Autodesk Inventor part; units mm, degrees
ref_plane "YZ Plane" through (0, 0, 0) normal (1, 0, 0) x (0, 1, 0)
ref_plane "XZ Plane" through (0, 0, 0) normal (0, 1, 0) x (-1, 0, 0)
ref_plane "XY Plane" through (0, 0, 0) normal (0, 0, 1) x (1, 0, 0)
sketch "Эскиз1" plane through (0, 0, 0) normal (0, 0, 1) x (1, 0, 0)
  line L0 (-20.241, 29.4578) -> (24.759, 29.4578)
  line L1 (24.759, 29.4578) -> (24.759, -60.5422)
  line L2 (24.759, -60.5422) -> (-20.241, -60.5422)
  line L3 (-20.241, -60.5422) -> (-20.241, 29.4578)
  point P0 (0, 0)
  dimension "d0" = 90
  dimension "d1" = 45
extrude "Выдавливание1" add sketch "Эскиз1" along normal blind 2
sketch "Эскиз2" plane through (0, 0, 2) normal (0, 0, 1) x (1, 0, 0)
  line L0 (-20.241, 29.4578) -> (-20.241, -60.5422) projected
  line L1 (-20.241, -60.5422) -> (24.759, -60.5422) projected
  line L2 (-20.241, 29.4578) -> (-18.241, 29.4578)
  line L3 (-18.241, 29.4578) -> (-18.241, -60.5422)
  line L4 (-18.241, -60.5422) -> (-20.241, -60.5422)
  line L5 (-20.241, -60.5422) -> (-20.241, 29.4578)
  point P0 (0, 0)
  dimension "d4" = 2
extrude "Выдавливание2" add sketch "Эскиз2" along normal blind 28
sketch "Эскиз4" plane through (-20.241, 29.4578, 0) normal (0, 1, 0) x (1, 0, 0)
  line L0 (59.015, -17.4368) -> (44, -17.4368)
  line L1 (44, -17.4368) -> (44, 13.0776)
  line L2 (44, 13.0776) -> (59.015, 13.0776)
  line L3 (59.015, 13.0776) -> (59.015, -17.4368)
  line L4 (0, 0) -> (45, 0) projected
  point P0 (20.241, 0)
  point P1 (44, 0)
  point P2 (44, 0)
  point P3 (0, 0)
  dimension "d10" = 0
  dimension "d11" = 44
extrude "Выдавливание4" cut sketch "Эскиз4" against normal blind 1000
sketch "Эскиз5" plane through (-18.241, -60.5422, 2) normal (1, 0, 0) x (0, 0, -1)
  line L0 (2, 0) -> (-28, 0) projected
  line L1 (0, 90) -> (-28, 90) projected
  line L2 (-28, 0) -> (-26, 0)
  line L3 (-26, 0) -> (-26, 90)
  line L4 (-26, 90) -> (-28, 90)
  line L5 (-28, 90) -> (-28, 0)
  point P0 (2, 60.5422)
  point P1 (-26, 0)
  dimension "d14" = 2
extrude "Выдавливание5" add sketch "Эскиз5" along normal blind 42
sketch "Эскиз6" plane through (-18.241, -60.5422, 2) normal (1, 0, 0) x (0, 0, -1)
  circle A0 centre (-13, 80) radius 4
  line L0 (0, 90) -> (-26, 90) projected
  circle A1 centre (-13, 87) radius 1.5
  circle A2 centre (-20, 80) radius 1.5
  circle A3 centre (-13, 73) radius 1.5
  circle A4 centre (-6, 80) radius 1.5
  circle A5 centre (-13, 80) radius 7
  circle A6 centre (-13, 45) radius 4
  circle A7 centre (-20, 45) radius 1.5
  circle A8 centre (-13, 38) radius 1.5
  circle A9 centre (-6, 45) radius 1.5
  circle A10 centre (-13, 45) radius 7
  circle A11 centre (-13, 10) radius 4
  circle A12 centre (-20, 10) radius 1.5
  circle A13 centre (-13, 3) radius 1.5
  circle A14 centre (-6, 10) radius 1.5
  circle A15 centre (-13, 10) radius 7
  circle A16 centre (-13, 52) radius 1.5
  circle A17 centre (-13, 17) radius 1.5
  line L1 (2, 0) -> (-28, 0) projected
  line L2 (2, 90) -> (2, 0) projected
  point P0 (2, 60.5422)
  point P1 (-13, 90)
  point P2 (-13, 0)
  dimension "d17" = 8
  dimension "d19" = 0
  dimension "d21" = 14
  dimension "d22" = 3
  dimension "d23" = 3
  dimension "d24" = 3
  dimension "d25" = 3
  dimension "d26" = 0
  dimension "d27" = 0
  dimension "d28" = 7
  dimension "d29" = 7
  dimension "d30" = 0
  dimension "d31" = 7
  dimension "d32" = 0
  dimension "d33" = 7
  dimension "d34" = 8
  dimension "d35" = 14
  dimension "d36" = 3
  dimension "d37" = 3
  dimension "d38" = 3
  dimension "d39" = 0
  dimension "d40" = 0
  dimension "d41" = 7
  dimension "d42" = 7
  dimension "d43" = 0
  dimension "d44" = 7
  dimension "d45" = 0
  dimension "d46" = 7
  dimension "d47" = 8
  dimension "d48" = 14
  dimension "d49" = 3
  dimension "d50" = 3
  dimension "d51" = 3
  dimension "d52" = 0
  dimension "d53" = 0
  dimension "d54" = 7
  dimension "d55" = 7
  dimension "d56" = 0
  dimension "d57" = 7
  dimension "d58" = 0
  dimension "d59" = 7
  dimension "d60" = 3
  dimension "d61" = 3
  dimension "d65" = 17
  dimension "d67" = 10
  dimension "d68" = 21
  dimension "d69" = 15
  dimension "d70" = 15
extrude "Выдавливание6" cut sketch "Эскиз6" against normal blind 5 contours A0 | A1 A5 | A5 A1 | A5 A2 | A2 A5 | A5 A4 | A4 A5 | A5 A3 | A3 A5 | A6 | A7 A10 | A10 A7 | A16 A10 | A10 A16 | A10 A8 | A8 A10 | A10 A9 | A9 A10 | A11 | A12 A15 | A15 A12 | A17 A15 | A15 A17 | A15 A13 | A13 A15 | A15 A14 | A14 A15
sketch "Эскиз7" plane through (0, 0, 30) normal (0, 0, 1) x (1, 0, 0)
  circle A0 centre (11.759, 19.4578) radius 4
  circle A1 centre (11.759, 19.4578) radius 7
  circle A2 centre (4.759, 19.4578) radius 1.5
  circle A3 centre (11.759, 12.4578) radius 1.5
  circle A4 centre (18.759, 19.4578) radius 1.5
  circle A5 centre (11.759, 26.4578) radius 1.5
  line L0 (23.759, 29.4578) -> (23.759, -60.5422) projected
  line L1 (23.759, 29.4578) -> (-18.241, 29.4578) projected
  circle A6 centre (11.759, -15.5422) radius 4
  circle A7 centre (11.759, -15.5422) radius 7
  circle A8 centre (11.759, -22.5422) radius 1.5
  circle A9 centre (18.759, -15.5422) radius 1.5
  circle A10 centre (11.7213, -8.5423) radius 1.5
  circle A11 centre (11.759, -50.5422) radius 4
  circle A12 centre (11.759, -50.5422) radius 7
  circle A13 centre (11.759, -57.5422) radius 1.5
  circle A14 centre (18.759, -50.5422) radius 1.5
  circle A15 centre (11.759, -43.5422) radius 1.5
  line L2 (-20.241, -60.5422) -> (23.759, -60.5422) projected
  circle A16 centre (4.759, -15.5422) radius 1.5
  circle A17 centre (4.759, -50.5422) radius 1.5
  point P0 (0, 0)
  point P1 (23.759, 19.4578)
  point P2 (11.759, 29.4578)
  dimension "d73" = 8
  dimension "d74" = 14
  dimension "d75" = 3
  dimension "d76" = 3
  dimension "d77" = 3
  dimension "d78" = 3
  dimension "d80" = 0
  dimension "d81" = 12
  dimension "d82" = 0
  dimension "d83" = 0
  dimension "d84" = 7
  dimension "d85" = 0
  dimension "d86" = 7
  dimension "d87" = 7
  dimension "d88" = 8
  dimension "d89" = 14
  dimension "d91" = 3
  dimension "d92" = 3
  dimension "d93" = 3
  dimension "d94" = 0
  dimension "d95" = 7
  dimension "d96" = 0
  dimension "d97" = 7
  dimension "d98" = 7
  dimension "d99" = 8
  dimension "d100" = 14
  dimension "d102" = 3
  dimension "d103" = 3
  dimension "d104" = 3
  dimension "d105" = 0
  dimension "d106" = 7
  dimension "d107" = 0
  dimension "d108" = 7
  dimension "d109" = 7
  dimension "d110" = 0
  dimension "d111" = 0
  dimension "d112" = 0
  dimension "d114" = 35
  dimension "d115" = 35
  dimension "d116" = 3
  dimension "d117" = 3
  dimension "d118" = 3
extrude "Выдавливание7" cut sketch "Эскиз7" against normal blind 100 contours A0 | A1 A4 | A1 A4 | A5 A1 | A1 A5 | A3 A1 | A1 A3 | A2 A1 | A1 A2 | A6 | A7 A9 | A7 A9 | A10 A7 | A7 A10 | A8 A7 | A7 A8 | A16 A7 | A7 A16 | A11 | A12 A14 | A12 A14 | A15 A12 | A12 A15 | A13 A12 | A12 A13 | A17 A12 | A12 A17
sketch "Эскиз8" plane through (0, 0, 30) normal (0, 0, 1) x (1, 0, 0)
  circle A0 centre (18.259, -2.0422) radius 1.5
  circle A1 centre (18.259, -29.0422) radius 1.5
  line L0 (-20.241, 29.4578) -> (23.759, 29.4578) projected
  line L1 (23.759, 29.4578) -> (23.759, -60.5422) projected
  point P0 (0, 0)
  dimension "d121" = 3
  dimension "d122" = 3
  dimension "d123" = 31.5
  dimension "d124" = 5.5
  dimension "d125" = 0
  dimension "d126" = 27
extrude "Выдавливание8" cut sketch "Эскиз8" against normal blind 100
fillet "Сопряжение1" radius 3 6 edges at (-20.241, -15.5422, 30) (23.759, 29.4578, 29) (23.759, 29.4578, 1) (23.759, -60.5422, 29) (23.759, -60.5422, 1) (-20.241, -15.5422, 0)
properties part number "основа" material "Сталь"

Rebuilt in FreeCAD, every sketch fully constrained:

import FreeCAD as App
import Part
import Sketcher


def edges_at(feature, points):
    """Names of the edges that pass closest to the given points."""
    edges = feature.Shape.Edges
    near = lambda p: min(range(len(edges)), key=lambda i: edges[i].distToShape(Part.Vertex(*p))[0])
    return sorted({f"Edge{near(p) + 1}" for p in points})

doc = App.newDocument("Part")
body = doc.addObject("PartDesign::Body", "Body")

# Sketch on XY plane
sketch1 = body.newObject("Sketcher::SketchObject", "Sketch")
sketch1.AttachmentSupport = (doc.getObject("XY_Plane"), [""])
sketch1.MapMode = "FlatFace"
sketch1.addGeometry(Part.LineSegment(App.Vector(25, 29, 0), App.Vector(-20, 29, 0)), False)
sketch1.addGeometry(Part.LineSegment(App.Vector(-20, 29, 0), App.Vector(-20, -61, 0)), False)
sketch1.addGeometry(Part.LineSegment(App.Vector(-20, -61, 0), App.Vector(25, -61, 0)), False)
sketch1.addGeometry(Part.LineSegment(App.Vector(25, -61, 0), App.Vector(25, 29, 0)), False)
sketch1.addConstraint(Sketcher.Constraint("Coincident", 0, 2, 1, 1))
sketch1.addConstraint(Sketcher.Constraint("Coincident", 1, 2, 2, 1))
sketch1.addConstraint(Sketcher.Constraint("Coincident", 2, 2, 3, 1))
sketch1.addConstraint(Sketcher.Constraint("Coincident", 3, 2, 0, 1))
sketch1.addConstraint(Sketcher.Constraint("Horizontal", 0))
sketch1.addConstraint(Sketcher.Constraint("Vertical", 1))
sketch1.addConstraint(Sketcher.Constraint("Horizontal", 2))
sketch1.addConstraint(Sketcher.Constraint("Vertical", 3))
sketch1.addConstraint(Sketcher.Constraint("DistanceX", 0, 2, 0, 1, 45.0))
sketch1.addConstraint(Sketcher.Constraint("DistanceY", 1, 2, 1, 1, 90.0))
sketch1.addConstraint(Sketcher.Constraint("DistanceX", 0, 2, -1, 1, 20.241))
sketch1.addConstraint(Sketcher.Constraint("DistanceY", -1, 1, 0, 2, 29.4578))
pad1 = body.newObject("PartDesign::Pad", "Pad")
pad1.Profile = sketch1
pad1.Length = 2

# Sketch on XY plane
sketch2 = body.newObject("Sketcher::SketchObject", "Sketch001")
sketch2.AttachmentSupport = (doc.getObject("XY_Plane"), [""])
sketch2.MapMode = "FlatFace"
sketch2.AttachmentOffset = App.Placement(App.Vector(0, 0, 2), App.Rotation())
sketch2.addGeometry(Part.LineSegment(App.Vector(-18.2, 29.5, 0), App.Vector(-20.2, 29.5, 0)), False)
sketch2.addGeometry(Part.LineSegment(App.Vector(-20.2, 29.5, 0), App.Vector(-20.2, -60.5, 0)), False)
sketch2.addGeometry(Part.LineSegment(App.Vector(-20.2, -60.5, 0), App.Vector(-18.2, -60.5, 0)), False)
sketch2.addGeometry(Part.LineSegment(App.Vector(-18.2, -60.5, 0), App.Vector(-18.2, 29.5, 0)), False)
sketch2.addConstraint(Sketcher.Constraint("Coincident", 0, 2, 1, 1))
sketch2.addConstraint(Sketcher.Constraint("Coincident", 1, 2, 2, 1))
sketch2.addConstraint(Sketcher.Constraint("Coincident", 2, 2, 3, 1))
sketch2.addConstraint(Sketcher.Constraint("Coincident", 3, 2, 0, 1))
sketch2.addConstraint(Sketcher.Constraint("Horizontal", 0))
sketch2.addConstraint(Sketcher.Constraint("Vertical", 1))
sketch2.addConstraint(Sketcher.Constraint("Horizontal", 2))
sketch2.addConstraint(Sketcher.Constraint("Vertical", 3))
sketch2.addConstraint(Sketcher.Constraint("DistanceX", 0, 2, 0, 1, 2.0))
sketch2.addConstraint(Sketcher.Constraint("DistanceY", 1, 2, 1, 1, 90.0))
sketch2.addConstraint(Sketcher.Constraint("DistanceX", 0, 2, -1, 1, 20.241))
sketch2.addConstraint(Sketcher.Constraint("DistanceY", -1, 1, 0, 2, 29.4578))
pad2 = body.newObject("PartDesign::Pad", "Pad001")
pad2.Profile = sketch2
pad2.Length = 28

# Sketch on XZ plane
sketch3 = body.newObject("Sketcher::SketchObject", "Sketch002")
sketch3.AttachmentSupport = (doc.getObject("XZ_Plane"), [""])
sketch3.MapMode = "FlatFace"
sketch3.AttachmentOffset = App.Placement(App.Vector(0, 0, -29.4578), App.Rotation())
sketch3.addGeometry(Part.LineSegment(App.Vector(24, 17, 0), App.Vector(39, 17, 0)), False)
sketch3.addGeometry(Part.LineSegment(App.Vector(39, 17, 0), App.Vector(39, -13, 0)), False)
sketch3.addGeometry(Part.LineSegment(App.Vector(39, -13, 0), App.Vector(24, -13, 0)), False)
sketch3.addGeometry(Part.LineSegment(App.Vector(24, -13, 0), App.Vector(24, 17, 0)), False)
sketch3.addConstraint(Sketcher.Constraint("Coincident", 0, 2, 1, 1))
sketch3.addConstraint(Sketcher.Constraint("Coincident", 1, 2, 2, 1))
sketch3.addConstraint(Sketcher.Constraint("Coincident", 2, 2, 3, 1))
sketch3.addConstraint(Sketcher.Constraint("Coincident", 3, 2, 0, 1))
sketch3.addConstraint(Sketcher.Constraint("Horizontal", 0))
sketch3.addConstraint(Sketcher.Constraint("Vertical", 1))
sketch3.addConstraint(Sketcher.Constraint("Horizontal", 2))
sketch3.addConstraint(Sketcher.Constraint("Vertical", 3))
sketch3.addConstraint(Sketcher.Constraint("DistanceX", 0, 1, 0, 2, 15.015))
sketch3.addConstraint(Sketcher.Constraint("DistanceY", 1, 2, 1, 1, 30.5144))
sketch3.addConstraint(Sketcher.Constraint("DistanceX", -1, 1, 0, 2, 38.774))
sketch3.addConstraint(Sketcher.Constraint("DistanceY", -1, 1, 0, 2, 17.4368))
pocket1 = body.newObject("PartDesign::Pocket", "Pocket")
pocket1.Profile = sketch3
pocket1.Length = 1000
pocket1.Reversed = True

# Sketch on YZ plane
sketch4 = body.newObject("Sketcher::SketchObject", "Sketch003")
sketch4.AttachmentSupport = (doc.getObject("YZ_Plane"), [""])
sketch4.MapMode = "FlatFace"
sketch4.AttachmentOffset = App.Placement(App.Vector(0, 0, -18.241), App.Rotation())
sketch4.addGeometry(Part.LineSegment(App.Vector(-60.5, 30, 0), App.Vector(-60.5, 28, 0)), False)
sketch4.addGeometry(Part.LineSegment(App.Vector(-60.5, 28, 0), App.Vector(29.5, 28, 0)), False)
sketch4.addGeometry(Part.LineSegment(App.Vector(29.5, 28, 0), App.Vector(29.5, 30, 0)), False)
sketch4.addGeometry(Part.LineSegment(App.Vector(29.5, 30, 0), App.Vector(-60.5, 30, 0)), False)
sketch4.addConstraint(Sketcher.Constraint("Coincident", 0, 2, 1, 1))
sketch4.addConstraint(Sketcher.Constraint("Coincident", 1, 2, 2, 1))
sketch4.addConstraint(Sketcher.Constraint("Coincident", 2, 2, 3, 1))
sketch4.addConstraint(Sketcher.Constraint("Coincident", 3, 2, 0, 1))
sketch4.addConstraint(Sketcher.Constraint("Vertical", 0))
sketch4.addConstraint(Sketcher.Constraint("Horizontal", 1))
sketch4.addConstraint(Sketcher.Constraint("Vertical", 2))
sketch4.addConstraint(Sketcher.Constraint("Horizontal", 3))
sketch4.addConstraint(Sketcher.Constraint("DistanceY", 0, 2, 0, 1, 2.0))
sketch4.addConstraint(Sketcher.Constraint("DistanceX", 1, 1, 1, 2, 90.0))
sketch4.addConstraint(Sketcher.Constraint("DistanceY", -1, 1, 0, 2, 28.0))
sketch4.addConstraint(Sketcher.Constraint("DistanceX", 0, 2, -1, 1, 60.5422))
pad3 = body.newObject("PartDesign::Pad", "Pad002")
pad3.Profile = sketch4
pad3.Length = 42

# Sketch on YZ plane
sketch5 = body.newObject("Sketcher::SketchObject", "Sketch004")
sketch5.AttachmentSupport = (doc.getObject("YZ_Plane"), [""])
sketch5.MapMode = "FlatFace"
sketch5.AttachmentOffset = App.Placement(App.Vector(0, 0, -18.241), App.Rotation())
sketch5.addGeometry(Part.Circle(App.Vector(19.5, 15, 0), App.Vector(0, 0, 1), 4), False)
sketch5.addGeometry(Part.Circle(App.Vector(26.5, 15, 0), App.Vector(0, 0, 1), 1.5), False)
sketch5.addGeometry(Part.Circle(App.Vector(19.5, 22, 0), App.Vector(0, 0, 1), 1.5), False)
sketch5.addGeometry(Part.Circle(App.Vector(19.5, 8, 0), App.Vector(0, 0, 1), 1.5), False)
sketch5.addGeometry(Part.Circle(App.Vector(12.5, 15, 0), App.Vector(0, 0, 1), 1.5), False)
sketch5.addGeometry(Part.Circle(App.Vector(-15.5, 15, 0), App.Vector(0, 0, 1), 4), False)
sketch5.addGeometry(Part.Circle(App.Vector(-15.5, 22, 0), App.Vector(0, 0, 1), 1.5), False)
sketch5.addGeometry(Part.Circle(App.Vector(-8.5, 15, 0), App.Vector(0, 0, 1), 1.5), False)
sketch5.addGeometry(Part.Circle(App.Vector(-22.5, 15, 0), App.Vector(0, 0, 1), 1.5), False)
sketch5.addGeometry(Part.Circle(App.Vector(-15.5, 8, 0), App.Vector(0, 0, 1), 1.5), False)
sketch5.addGeometry(Part.Circle(App.Vector(-50.5, 15, 0), App.Vector(0, 0, 1), 4), False)
sketch5.addGeometry(Part.Circle(App.Vector(-50.5, 22, 0), App.Vector(0, 0, 1), 1.5), False)
sketch5.addGeometry(Part.Circle(App.Vector(-43.5, 15, 0), App.Vector(0, 0, 1), 1.5), False)
sketch5.addGeometry(Part.Circle(App.Vector(-57.5, 15, 0), App.Vector(0, 0, 1), 1.5), False)
sketch5.addGeometry(Part.Circle(App.Vector(-50.5, 8, 0), App.Vector(0, 0, 1), 1.5), False)
sketch5.addConstraint(Sketcher.Constraint("Equal", 1, 2))
sketch5.addConstraint(Sketcher.Constraint("Equal", 2, 3))
sketch5.addConstraint(Sketcher.Constraint("Equal", 3, 4))
sketch5.addConstraint(Sketcher.Constraint("Equal", 0, 5))
sketch5.addConstraint(Sketcher.Constraint("Equal", 4, 6))
sketch5.addConstraint(Sketcher.Constraint("Equal", 6, 7))
sketch5.addConstraint(Sketcher.Constraint("Equal", 7, 8))
sketch5.addConstraint(Sketcher.Constraint("Equal", 8, 9))
sketch5.addConstraint(Sketcher.Constraint("Equal", 5, 10))
sketch5.addConstraint(Sketcher.Constraint("Equal", 9, 11))
sketch5.addConstraint(Sketcher.Constraint("Equal", 11, 12))
sketch5.addConstraint(Sketcher.Constraint("Equal", 12, 13))
sketch5.addConstraint(Sketcher.Constraint("Equal", 13, 14))
sketch5.addConstraint(Sketcher.Constraint("Horizontal", 0, 3, 1, 3))
sketch5.addConstraint(Sketcher.Constraint("Horizontal", 1, 3, 4, 3))
sketch5.addConstraint(Sketcher.Constraint("Horizontal", 4, 3, 5, 3))
sketch5.addConstraint(Sketcher.Constraint("Horizontal", 2, 3, 6, 3))
sketch5.addConstraint(Sketcher.Constraint("Horizontal", 5, 3, 7, 3))
sketch5.addConstraint(Sketcher.Constraint("Horizontal", 7, 3, 8, 3))
sketch5.addConstraint(Sketcher.Constraint("Horizontal", 3, 3, 9, 3))
sketch5.addConstraint(Sketcher.Constraint("Horizontal", 8, 3, 10, 3))
sketch5.addConstraint(Sketcher.Constraint("Horizontal", 6, 3, 11, 3))
sketch5.addConstraint(Sketcher.Constraint("Horizontal", 10, 3, 12, 3))
sketch5.addConstraint(Sketcher.Constraint("Horizontal", 12, 3, 13, 3))
sketch5.addConstraint(Sketcher.Constraint("Horizontal", 9, 3, 14, 3))
sketch5.addConstraint(Sketcher.Constraint("Vertical", 0, 3, 2, 3))
sketch5.addConstraint(Sketcher.Constraint("Vertical", 2, 3, 3, 3))
sketch5.addConstraint(Sketcher.Constraint("Vertical", 5, 3, 6, 3))
sketch5.addConstraint(Sketcher.Constraint("Vertical", 6, 3, 9, 3))
sketch5.addConstraint(Sketcher.Constraint("Vertical", 10, 3, 11, 3))
sketch5.addConstraint(Sketcher.Constraint("Vertical", 11, 3, 14, 3))
sketch5.addConstraint(Sketcher.Constraint("Diameter", 0, 8.0))
sketch5.addConstraint(Sketcher.Constraint("Diameter", 1, 3.0))
sketch5.addConstraint(Sketcher.Constraint("DistanceY", -1, 1, 0, 3, 15.0))
sketch5.addConstraint(Sketcher.Constraint("DistanceY", -1, 1, 3, 3, 8.0))
sketch5.addConstraint(Sketcher.Constraint("DistanceX", 0, 3, 1, 3, 7.0))
sketch5.addConstraint(Sketcher.Constraint("DistanceY", 0, 3, 2, 3, 7.0))
sketch5.addConstraint(Sketcher.Constraint("DistanceX", 4, 3, 0, 3, 7.0))
sketch5.addConstraint(Sketcher.Constraint("DistanceX", 5, 3, 7, 3, 7.0))
sketch5.addConstraint(Sketcher.Constraint("DistanceX", 7, 3, 4, 3, 21.0))
sketch5.addConstraint(Sketcher.Constraint("DistanceX", 8, 3, 5, 3, 7.0))
sketch5.addConstraint(Sketcher.Constraint("DistanceX", 10, 3, 12, 3, 7.0))
sketch5.addConstraint(Sketcher.Constraint("DistanceX", 12, 3, 8, 3, 21.0))
sketch5.addConstraint(Sketcher.Constraint("DistanceX", 13, 3, 10, 3, 7.0))
sketch5.addConstraint(Sketcher.Constraint("DistanceX", -1, 1, 0, 3, 19.4578))
pocket2 = body.newObject("PartDesign::Pocket", "Pocket001")
pocket2.Profile = sketch5
pocket2.Length = 5

# Sketch on XY plane
sketch6 = body.newObject("Sketcher::SketchObject", "Sketch005")
sketch6.AttachmentSupport = (doc.getObject("XY_Plane"), [""])
sketch6.MapMode = "FlatFace"
sketch6.AttachmentOffset = App.Placement(App.Vector(0, 0, 30), App.Rotation())
sketch6.addGeometry(Part.Circle(App.Vector(11.8, 19.5, 0), App.Vector(0, 0, 1), 4), False)
sketch6.addGeometry(Part.Circle(App.Vector(18.8, 19.5, 0), App.Vector(0, 0, 1), 1.5), False)
sketch6.addGeometry(Part.Circle(App.Vector(11.8, 26.5, 0), App.Vector(0, 0, 1), 1.5), False)
sketch6.addGeometry(Part.Circle(App.Vector(11.8, 12.5, 0), App.Vector(0, 0, 1), 1.5), False)
sketch6.addGeometry(Part.Circle(App.Vector(4.8, 19.5, 0), App.Vector(0, 0, 1), 1.5), False)
sketch6.addGeometry(Part.Circle(App.Vector(11.8, -15.5, 0), App.Vector(0, 0, 1), 4), False)
sketch6.addGeometry(Part.Circle(App.Vector(18.8, -15.5, 0), App.Vector(0, 0, 1), 1.5), False)
sketch6.addGeometry(Part.Circle(App.Vector(11.7, -8.5, 0), App.Vector(0, 0, 1), 1.5), False)
sketch6.addGeometry(Part.Circle(App.Vector(11.8, -22.5, 0), App.Vector(0, 0, 1), 1.5), False)
sketch6.addGeometry(Part.Circle(App.Vector(4.8, -15.5, 0), App.Vector(0, 0, 1), 1.5), False)
sketch6.addGeometry(Part.Circle(App.Vector(11.8, -50.5, 0), App.Vector(0, 0, 1), 4), False)
sketch6.addGeometry(Part.Circle(App.Vector(18.8, -50.5, 0), App.Vector(0, 0, 1), 1.5), False)
sketch6.addGeometry(Part.Circle(App.Vector(11.8, -43.5, 0), App.Vector(0, 0, 1), 1.5), False)
sketch6.addGeometry(Part.Circle(App.Vector(11.8, -57.5, 0), App.Vector(0, 0, 1), 1.5), False)
sketch6.addGeometry(Part.Circle(App.Vector(4.8, -50.5, 0), App.Vector(0, 0, 1), 1.5), False)
sketch6.addConstraint(Sketcher.Constraint("Equal", 1, 2))
sketch6.addConstraint(Sketcher.Constraint("Equal", 2, 3))
sketch6.addConstraint(Sketcher.Constraint("Equal", 3, 4))
sketch6.addConstraint(Sketcher.Constraint("Equal", 0, 5))
sketch6.addConstraint(Sketcher.Constraint("Equal", 4, 6))
sketch6.addConstraint(Sketcher.Constraint("Equal", 6, 7))
sketch6.addConstraint(Sketcher.Constraint("Equal", 7, 8))
sketch6.addConstraint(Sketcher.Constraint("Equal", 8, 9))
sketch6.addConstraint(Sketcher.Constraint("Equal", 5, 10))
sketch6.addConstraint(Sketcher.Constraint("Equal", 9, 11))
sketch6.addConstraint(Sketcher.Constraint("Equal", 11, 12))
sketch6.addConstraint(Sketcher.Constraint("Equal", 12, 13))
sketch6.addConstraint(Sketcher.Constraint("Equal", 13, 14))
sketch6.addConstraint(Sketcher.Constraint("Horizontal", 0, 3, 1, 3))
sketch6.addConstraint(Sketcher.Constraint("Horizontal", 1, 3, 4, 3))
sketch6.addConstraint(Sketcher.Constraint("Horizontal", 5, 3, 6, 3))
sketch6.addConstraint(Sketcher.Constraint("Horizontal", 6, 3, 9, 3))
sketch6.addConstraint(Sketcher.Constraint("Horizontal", 10, 3, 11, 3))
sketch6.addConstraint(Sketcher.Constraint("Horizontal", 11, 3, 14, 3))
sketch6.addConstraint(Sketcher.Constraint("Vertical", 0, 3, 2, 3))
sketch6.addConstraint(Sketcher.Constraint("Vertical", 2, 3, 3, 3))
sketch6.addConstraint(Sketcher.Constraint("Vertical", 3, 3, 5, 3))
sketch6.addConstraint(Sketcher.Constraint("Vertical", 1, 3, 6, 3))
sketch6.addConstraint(Sketcher.Constraint("Vertical", 5, 3, 8, 3))
sketch6.addConstraint(Sketcher.Constraint("Vertical", 4, 3, 9, 3))
sketch6.addConstraint(Sketcher.Constraint("Vertical", 8, 3, 10, 3))
sketch6.addConstraint(Sketcher.Constraint("Vertical", 6, 3, 11, 3))
sketch6.addConstraint(Sketcher.Constraint("Vertical", 10, 3, 12, 3))
sketch6.addConstraint(Sketcher.Constraint("Vertical", 12, 3, 13, 3))
sketch6.addConstraint(Sketcher.Constraint("Vertical", 9, 3, 14, 3))
sketch6.addConstraint(Sketcher.Constraint("Diameter", 0, 8.0))
sketch6.addConstraint(Sketcher.Constraint("Diameter", 1, 3.0))
sketch6.addConstraint(Sketcher.Constraint("DistanceX", 0, 3, 1, 3, 7.0))
sketch6.addConstraint(Sketcher.Constraint("DistanceY", 0, 3, 2, 3, 7.0))
sketch6.addConstraint(Sketcher.Constraint("DistanceY", 3, 3, 0, 3, 7.0))
sketch6.addConstraint(Sketcher.Constraint("DistanceX", 4, 3, 0, 3, 7.0))
sketch6.addConstraint(Sketcher.Constraint("DistanceY", 5, 3, 0, 3, 35.0))
sketch6.addConstraint(Sketcher.Constraint("DistanceY", 5, 3, 7, 3, 7.0))
sketch6.addConstraint(Sketcher.Constraint("DistanceY", 8, 3, 5, 3, 7.0))
sketch6.addConstraint(Sketcher.Constraint("DistanceY", 10, 3, 5, 3, 35.0))
sketch6.addConstraint(Sketcher.Constraint("DistanceY", 10, 3, 12, 3, 7.0))
sketch6.addConstraint(Sketcher.Constraint("DistanceY", 13, 3, 10, 3, 7.0))
sketch6.addConstraint(Sketcher.Constraint("DistanceX", -1, 1, 0, 3, 11.759))
sketch6.addConstraint(Sketcher.Constraint("DistanceY", -1, 1, 0, 3, 19.4578))
sketch6.addConstraint(Sketcher.Constraint("DistanceX", -1, 1, 7, 3, 11.7213))
pocket3 = body.newObject("PartDesign::Pocket", "Pocket002")
pocket3.Profile = sketch6
pocket3.Length = 100

# Sketch on XY plane
sketch7 = body.newObject("Sketcher::SketchObject", "Sketch006")
sketch7.AttachmentSupport = (doc.getObject("XY_Plane"), [""])
sketch7.MapMode = "FlatFace"
sketch7.AttachmentOffset = App.Placement(App.Vector(0, 0, 30), App.Rotation())
sketch7.addGeometry(Part.Circle(App.Vector(18.3, -2, 0), App.Vector(0, 0, 1), 1.5), False)
sketch7.addGeometry(Part.Circle(App.Vector(18.3, -29, 0), App.Vector(0, 0, 1), 1.5), False)
sketch7.addConstraint(Sketcher.Constraint("Equal", 0, 1))
sketch7.addConstraint(Sketcher.Constraint("Vertical", 0, 3, 1, 3))
sketch7.addConstraint(Sketcher.Constraint("Diameter", 0, 3.0))
sketch7.addConstraint(Sketcher.Constraint("DistanceY", 1, 3, 0, 3, 27.0))
sketch7.addConstraint(Sketcher.Constraint("DistanceX", -1, 1, 0, 3, 18.259))
sketch7.addConstraint(Sketcher.Constraint("DistanceY", 0, 3, -1, 1, 2.0422))
pocket4 = body.newObject("PartDesign::Pocket", "Pocket003")
pocket4.Profile = sketch7
pocket4.Length = 100
doc.recompute()

fillet = body.newObject("PartDesign::Fillet", "Fillet")
fillet.Base = (pocket4, edges_at(pocket4, [
    (-20.241, -15.542, 30),
    (23.759, 29.458, 29),
    (23.759, 29.458, 1),
    (23.759, -60.542, 29),
    (23.759, -60.542, 1),
    (-20.241, -15.542, 0),
]))
fillet.Radius = 3

doc.recompute()
